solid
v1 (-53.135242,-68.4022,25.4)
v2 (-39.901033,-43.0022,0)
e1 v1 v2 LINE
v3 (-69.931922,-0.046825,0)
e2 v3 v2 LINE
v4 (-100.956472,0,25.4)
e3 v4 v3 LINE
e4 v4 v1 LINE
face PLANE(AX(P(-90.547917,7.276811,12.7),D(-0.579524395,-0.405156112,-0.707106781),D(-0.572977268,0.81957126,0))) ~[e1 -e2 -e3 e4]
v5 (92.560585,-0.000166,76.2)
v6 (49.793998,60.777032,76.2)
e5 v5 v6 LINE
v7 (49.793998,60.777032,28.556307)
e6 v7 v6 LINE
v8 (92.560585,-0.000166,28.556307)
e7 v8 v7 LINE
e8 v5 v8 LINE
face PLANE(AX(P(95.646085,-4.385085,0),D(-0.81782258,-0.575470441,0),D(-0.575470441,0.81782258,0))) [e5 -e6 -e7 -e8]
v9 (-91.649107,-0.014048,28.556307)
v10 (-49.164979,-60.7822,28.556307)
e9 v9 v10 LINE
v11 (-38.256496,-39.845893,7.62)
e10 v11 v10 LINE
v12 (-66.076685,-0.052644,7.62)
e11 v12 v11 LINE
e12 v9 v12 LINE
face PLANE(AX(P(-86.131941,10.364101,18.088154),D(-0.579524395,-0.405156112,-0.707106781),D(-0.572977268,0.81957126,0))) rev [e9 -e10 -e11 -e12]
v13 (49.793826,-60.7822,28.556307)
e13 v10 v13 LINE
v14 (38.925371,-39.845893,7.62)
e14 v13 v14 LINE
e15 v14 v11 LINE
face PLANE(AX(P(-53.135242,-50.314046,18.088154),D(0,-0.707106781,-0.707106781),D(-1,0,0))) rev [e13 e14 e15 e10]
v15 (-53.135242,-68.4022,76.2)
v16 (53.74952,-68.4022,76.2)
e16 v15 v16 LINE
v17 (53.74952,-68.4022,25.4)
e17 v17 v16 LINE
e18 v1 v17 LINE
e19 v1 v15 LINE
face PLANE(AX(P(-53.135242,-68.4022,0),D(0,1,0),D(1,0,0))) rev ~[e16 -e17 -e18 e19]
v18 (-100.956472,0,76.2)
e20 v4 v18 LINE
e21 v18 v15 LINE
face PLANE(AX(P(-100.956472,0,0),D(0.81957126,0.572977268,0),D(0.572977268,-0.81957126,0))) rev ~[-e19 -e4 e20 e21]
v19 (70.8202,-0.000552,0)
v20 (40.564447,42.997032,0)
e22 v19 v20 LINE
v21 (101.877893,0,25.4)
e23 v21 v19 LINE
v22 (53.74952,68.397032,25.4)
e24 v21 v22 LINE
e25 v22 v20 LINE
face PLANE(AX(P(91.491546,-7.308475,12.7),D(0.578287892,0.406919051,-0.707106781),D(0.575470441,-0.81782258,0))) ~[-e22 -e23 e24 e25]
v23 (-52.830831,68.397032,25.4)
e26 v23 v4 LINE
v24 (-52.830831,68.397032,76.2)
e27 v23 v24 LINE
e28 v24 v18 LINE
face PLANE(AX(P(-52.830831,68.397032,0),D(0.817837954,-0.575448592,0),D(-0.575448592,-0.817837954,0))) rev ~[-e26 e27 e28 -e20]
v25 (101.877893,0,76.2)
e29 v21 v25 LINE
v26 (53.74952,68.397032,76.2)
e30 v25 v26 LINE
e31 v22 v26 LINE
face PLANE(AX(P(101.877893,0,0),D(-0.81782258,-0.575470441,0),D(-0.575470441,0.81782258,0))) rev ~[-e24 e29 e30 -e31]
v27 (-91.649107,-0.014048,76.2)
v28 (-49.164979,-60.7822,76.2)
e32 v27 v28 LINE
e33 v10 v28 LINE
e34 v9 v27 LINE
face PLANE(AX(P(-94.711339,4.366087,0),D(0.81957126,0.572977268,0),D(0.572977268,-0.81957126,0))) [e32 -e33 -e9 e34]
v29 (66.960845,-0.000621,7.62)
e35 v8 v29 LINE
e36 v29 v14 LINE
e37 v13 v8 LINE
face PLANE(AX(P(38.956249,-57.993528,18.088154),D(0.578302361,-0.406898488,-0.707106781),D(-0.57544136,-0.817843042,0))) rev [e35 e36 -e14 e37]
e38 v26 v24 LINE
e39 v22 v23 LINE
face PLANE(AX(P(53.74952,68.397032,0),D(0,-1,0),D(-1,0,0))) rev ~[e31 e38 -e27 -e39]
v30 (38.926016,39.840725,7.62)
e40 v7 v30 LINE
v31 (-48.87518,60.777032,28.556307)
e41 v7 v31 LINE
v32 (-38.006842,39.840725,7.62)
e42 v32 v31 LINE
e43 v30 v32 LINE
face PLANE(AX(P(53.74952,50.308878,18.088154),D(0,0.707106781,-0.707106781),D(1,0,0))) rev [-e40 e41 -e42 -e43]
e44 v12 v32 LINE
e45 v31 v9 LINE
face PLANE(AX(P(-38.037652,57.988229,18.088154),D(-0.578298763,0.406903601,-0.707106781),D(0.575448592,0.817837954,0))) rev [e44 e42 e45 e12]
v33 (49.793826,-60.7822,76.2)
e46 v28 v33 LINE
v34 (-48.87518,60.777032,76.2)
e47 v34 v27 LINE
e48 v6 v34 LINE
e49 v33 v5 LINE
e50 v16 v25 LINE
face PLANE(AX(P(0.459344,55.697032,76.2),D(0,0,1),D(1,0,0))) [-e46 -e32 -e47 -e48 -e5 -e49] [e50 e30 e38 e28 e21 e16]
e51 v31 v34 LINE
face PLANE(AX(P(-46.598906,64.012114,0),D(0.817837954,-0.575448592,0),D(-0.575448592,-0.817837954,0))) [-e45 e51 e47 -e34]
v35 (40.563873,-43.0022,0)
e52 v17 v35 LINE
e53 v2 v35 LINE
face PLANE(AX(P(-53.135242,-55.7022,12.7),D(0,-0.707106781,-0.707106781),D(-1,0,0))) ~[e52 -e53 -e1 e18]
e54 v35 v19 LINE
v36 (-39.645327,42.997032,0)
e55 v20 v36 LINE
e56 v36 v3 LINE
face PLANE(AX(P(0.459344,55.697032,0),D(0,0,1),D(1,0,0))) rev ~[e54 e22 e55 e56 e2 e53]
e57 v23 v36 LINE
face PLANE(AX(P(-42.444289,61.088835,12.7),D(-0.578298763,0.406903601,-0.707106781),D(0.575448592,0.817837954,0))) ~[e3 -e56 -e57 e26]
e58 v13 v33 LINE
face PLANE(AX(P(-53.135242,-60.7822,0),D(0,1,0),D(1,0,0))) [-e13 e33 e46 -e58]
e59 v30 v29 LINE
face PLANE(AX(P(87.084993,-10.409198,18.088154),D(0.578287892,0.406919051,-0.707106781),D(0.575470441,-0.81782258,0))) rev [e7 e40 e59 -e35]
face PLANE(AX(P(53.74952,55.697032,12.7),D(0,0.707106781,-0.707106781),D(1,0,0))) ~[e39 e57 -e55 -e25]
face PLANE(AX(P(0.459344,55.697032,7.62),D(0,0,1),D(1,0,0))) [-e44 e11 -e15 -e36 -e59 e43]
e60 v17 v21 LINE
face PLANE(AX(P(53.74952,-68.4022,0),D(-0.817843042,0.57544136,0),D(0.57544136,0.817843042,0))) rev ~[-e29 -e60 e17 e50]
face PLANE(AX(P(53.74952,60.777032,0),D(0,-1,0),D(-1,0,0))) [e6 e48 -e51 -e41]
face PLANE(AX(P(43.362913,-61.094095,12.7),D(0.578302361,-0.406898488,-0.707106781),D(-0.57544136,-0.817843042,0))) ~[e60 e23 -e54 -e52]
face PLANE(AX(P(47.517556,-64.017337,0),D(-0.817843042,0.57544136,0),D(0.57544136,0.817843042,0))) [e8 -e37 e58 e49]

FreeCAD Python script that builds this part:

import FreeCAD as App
import Part
import Sketcher
from FreeCAD import Vector
Q = App.Units.Quantity


def edges_at(feature, points):
    """Names of the edges that pass closest to the given points."""
    edges = feature.Shape.Edges
    near = lambda p: min(range(len(edges)), key=lambda i: edges[i].distToShape(Part.Vertex(*p))[0])
    return sorted({f"Edge{near(p) + 1}" for p in points})


def faces_at(feature, points):
    """Names of the faces that lie closest to the given points."""
    faces = feature.Shape.Faces
    near = lambda p: min(range(len(faces)), key=lambda i: faces[i].distToShape(Part.Vertex(*p))[0])
    return sorted({f"Face{near(p) + 1}" for p in points})

doc = App.newDocument("Part")
params = doc.addObject("Spreadsheet::Sheet", "Params")
for row, (alias, value) in enumerate([
    ("pad1_length", "3 in"),
    ("chamfer_size", "1 in"),
    ("thickness_wall", "0.3 in"),
], start=1):
    params.set(f"A{row}", alias)
    params.set(f"B{row}", "=" + value)
    params.setAlias(f"B{row}", alias)

body = doc.addObject("PartDesign::Body", "Body")

sketch1 = body.newObject("Sketcher::SketchObject", "Sketch")
sketch1.AttachmentSupport = (doc.getObject("XY_Plane"), [""])
sketch1.MapMode = "FlatFace"
sketch1.addGeometry([
    Part.LineSegment(Vector(102, 0, 0), Vector(54, 68, 0)),
    Part.LineSegment(Vector(54, 68, 0), Vector(-53, 68, 0)),
    Part.LineSegment(Vector(-53, 68, 0), Vector(-101, 0, 0)),
    Part.LineSegment(Vector(-101, 0, 0), Vector(-53, -68, 0)),
    Part.LineSegment(Vector(-53, -68, 0), Vector(54, -68, 0)),
    Part.LineSegment(Vector(54, -68, 0), Vector(102, 0, 0)),
], False)
sketch1.addConstraint([
    Sketcher.Constraint("Coincident", 0, 2, 1, 1),
    Sketcher.Constraint("Coincident", 1, 2, 2, 1),
    Sketcher.Constraint("Coincident", 2, 2, 3, 1),
    Sketcher.Constraint("Coincident", 3, 2, 4, 1),
    Sketcher.Constraint("Coincident", 4, 2, 5, 1),
    Sketcher.Constraint("Coincident", 5, 2, 0, 1),
    Sketcher.Constraint("Horizontal", 1),
    Sketcher.Constraint("Horizontal", 4),
    Sketcher.Constraint("PointOnObject", 2, 2, -1),
    Sketcher.Constraint("PointOnObject", 5, 2, -1),
    Sketcher.Constraint("Vertical", 0, 2, 4, 2),
    Sketcher.Constraint("DistanceY", 3, 2, -1, 1, Q("2.693 in")),
    Sketcher.Constraint("DistanceX", 1, 2, 1, 1, 106.580351),
    Sketcher.Constraint("DistanceX", 4, 1, 4, 2, 106.884762),
    Sketcher.Constraint("Distance", 2, 83.631521),
    Sketcher.Constraint("Distance", 5, 83.63732),
    Sketcher.Constraint("DistanceX", -1, 1, 0, 2, 53.74952),
    Sketcher.Constraint("DistanceY", -1, 1, 0, 2, 68.397032),
])
pad1 = body.newObject("PartDesign::Pad", "Pad")
pad1.Profile = sketch1
pad1.setExpression("Length", "Params.pad1_length")
doc.recompute()

chamfer = body.newObject("PartDesign::Chamfer", "Chamfer")
chamfer.Base = (pad1, edges_at(pad1, [
    (0.459, 68.397, 0),
    (-76.894, 34.199, 0),
    (-77.046, -34.201, 0),
    (0.307, -68.402, 0),
    (77.814, -34.201, 0),
    (77.814, 34.199, 0),
]))
chamfer.setExpression("Size", "Params.chamfer_size")
doc.recompute()

thickness = body.newObject("PartDesign::Thickness", "Thickness")
thickness.Base = (chamfer, faces_at(chamfer, [(0.461, -0.003, 76.2)]))
thickness.setExpression("Value", "Params.thickness_wall")
thickness.Reversed = True
thickness.Join = "Arc"

doc.recompute()
